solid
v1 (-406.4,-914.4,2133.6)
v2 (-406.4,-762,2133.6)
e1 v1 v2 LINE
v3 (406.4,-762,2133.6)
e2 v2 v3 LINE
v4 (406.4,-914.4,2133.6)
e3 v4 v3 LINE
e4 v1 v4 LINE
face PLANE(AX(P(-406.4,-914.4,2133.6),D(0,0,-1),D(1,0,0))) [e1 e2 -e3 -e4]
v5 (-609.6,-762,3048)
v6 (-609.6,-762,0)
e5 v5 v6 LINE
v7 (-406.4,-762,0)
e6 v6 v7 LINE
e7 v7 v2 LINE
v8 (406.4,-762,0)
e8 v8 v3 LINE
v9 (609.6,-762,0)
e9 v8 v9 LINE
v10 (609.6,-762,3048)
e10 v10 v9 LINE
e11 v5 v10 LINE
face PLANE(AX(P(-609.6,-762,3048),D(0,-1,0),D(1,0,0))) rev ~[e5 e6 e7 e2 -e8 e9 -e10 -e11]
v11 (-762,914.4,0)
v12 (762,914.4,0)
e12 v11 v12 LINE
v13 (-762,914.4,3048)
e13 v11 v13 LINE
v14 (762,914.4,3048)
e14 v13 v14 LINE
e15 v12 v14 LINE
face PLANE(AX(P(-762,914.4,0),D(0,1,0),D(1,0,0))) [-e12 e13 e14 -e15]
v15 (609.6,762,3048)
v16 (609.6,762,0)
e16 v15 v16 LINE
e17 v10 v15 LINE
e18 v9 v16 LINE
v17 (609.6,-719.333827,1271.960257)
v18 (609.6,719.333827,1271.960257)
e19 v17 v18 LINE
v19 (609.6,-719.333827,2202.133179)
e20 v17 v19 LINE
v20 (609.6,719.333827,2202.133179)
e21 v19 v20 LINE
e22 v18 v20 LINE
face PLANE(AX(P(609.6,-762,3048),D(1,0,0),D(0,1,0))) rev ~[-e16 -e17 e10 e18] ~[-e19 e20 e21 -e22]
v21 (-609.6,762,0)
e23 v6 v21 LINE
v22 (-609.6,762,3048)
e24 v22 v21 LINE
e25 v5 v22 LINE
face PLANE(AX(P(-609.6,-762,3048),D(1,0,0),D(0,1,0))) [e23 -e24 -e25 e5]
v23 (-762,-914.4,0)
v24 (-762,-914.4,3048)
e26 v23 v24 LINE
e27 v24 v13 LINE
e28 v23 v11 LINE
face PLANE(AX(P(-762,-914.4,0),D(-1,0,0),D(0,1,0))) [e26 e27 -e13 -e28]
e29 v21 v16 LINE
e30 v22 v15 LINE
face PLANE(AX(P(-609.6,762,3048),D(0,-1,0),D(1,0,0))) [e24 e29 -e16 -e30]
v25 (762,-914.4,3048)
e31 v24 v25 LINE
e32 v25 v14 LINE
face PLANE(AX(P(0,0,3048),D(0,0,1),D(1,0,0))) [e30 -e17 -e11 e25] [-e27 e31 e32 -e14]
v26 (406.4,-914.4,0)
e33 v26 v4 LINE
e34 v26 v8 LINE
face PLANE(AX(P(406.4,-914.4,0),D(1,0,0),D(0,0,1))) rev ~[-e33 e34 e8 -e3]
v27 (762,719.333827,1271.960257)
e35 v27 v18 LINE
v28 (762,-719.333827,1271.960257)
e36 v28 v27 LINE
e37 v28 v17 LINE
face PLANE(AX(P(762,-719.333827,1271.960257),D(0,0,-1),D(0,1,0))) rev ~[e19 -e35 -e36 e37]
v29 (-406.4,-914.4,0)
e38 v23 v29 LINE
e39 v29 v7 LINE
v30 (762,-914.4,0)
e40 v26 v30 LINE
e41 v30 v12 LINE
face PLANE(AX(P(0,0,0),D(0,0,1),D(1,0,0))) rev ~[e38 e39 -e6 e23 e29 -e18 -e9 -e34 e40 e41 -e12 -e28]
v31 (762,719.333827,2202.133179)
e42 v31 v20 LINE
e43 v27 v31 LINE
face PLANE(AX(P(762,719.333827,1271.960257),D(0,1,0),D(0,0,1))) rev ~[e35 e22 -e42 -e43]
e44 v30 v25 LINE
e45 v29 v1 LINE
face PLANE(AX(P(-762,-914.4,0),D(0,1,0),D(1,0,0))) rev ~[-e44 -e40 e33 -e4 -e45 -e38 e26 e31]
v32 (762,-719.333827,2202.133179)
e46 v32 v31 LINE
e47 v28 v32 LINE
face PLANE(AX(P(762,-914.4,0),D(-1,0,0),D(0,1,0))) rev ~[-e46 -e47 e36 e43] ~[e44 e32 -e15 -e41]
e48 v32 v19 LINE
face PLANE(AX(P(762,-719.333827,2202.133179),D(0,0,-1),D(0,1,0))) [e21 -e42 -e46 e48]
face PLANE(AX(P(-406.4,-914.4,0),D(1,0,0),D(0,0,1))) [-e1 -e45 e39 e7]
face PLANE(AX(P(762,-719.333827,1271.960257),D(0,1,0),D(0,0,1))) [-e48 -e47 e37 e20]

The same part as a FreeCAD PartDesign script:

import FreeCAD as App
import Part
import Sketcher
from FreeCAD import Vector
Q = App.Units.Quantity


def add_polygon(sketch, points):
    """Adds a closed chain of lines whose ends are joined by coincident constraints."""
    first, n = sketch.GeometryCount, len(points)
    for a, b in zip(points, points[1:] + points[:1]):
        sketch.addGeometry(Part.LineSegment(App.Vector(*a, 0), App.Vector(*b, 0)), False)
    for i in range(n):
        sketch.addConstraint(Sketcher.Constraint("Coincident", first + i, 2, first + (i + 1) % n, 1))

doc = App.newDocument("Part")
params = doc.addObject("Spreadsheet::Sheet", "Params")
for row, (alias, value) in enumerate([
    ("sketch1_width", "60 in"),
    ("sketch1_height", "72 in"),
    ("pad1_length", "120 in"),
    ("sketch2_width", "48 in"),
    ("sketch2_height", "60 in"),
    ("pocket1_length", "120 in"),
    ("sketch3_width", "32 in"),
    ("sketch3_height", "84 in"),
    ("pocket2_length", "8 in"),
    ("pocket3_length", "8 in"),
], start=1):
    params.set(f"A{row}", alias)
    params.set(f"B{row}", "=" + value)
    params.setAlias(f"B{row}", alias)

body = doc.addObject("PartDesign::Body", "Body")

# Sketch on XY plane
sketch1 = doc.addObject("Sketcher::SketchObject", "Sketch")
body.addObject(sketch1)
sketch1.AttachmentSupport = (doc.XY_Plane, [""])
sketch1.MapMode = "FlatFace"
add_polygon(sketch1, [(-762, 914), (-762, -914), (762, -914), (762, 914)])  # lines 0-3
sketch1.addConstraint(Sketcher.Constraint("Vertical", 0))
sketch1.addConstraint(Sketcher.Constraint("Horizontal", 1))
sketch1.addConstraint(Sketcher.Constraint("Vertical", 2))
sketch1.addConstraint(Sketcher.Constraint("Horizontal", 3))
sketch1.addConstraint(Sketcher.Constraint("Symmetric", 0, 2, 2, 2, -1, 1))
sketch1.addConstraint(Sketcher.Constraint("DistanceX", 1, 1, 1, 2, Q("60 in")))
sketch1.addConstraint(Sketcher.Constraint("DistanceY", 0, 2, 0, 1, Q("72 in")))
sketch1.setExpression("Constraints[9]", "Params.sketch1_width")
sketch1.setExpression("Constraints[10]", "Params.sketch1_height")
pad1 = doc.addObject("PartDesign::Pad", "Pad")
body.addObject(pad1)
pad1.Profile = sketch1
pad1.setExpression("Length", "Params.pad1_length")

# Sketch on XY plane
sketch2 = doc.addObject("Sketcher::SketchObject", "Sketch001")
body.addObject(sketch2)
sketch2.AttachmentSupport = (doc.XY_Plane, [""])
sketch2.MapMode = "FlatFace"
sketch2.AttachmentOffset = App.Placement(Vector(0, 0, 120 * 25.4), App.Rotation())
add_polygon(sketch2, [(-610, 762), (-610, -762), (610, -762), (610, 762)])  # lines 0-3
sketch2.addConstraint(Sketcher.Constraint("Vertical", 0))
sketch2.addConstraint(Sketcher.Constraint("Horizontal", 1))
sketch2.addConstraint(Sketcher.Constraint("Vertical", 2))
sketch2.addConstraint(Sketcher.Constraint("Horizontal", 3))
sketch2.addConstraint(Sketcher.Constraint("Symmetric", 0, 2, 2, 2, -1, 1))
sketch2.addConstraint(Sketcher.Constraint("DistanceX", 1, 1, 1, 2, Q("48 in")))
sketch2.addConstraint(Sketcher.Constraint("DistanceY", 0, 2, 0, 1, Q("60 in")))
sketch2.setExpression("Constraints[9]", "Params.sketch2_width")
sketch2.setExpression("Constraints[10]", "Params.sketch2_height")
pocket1 = doc.addObject("PartDesign::Pocket", "Pocket")
body.addObject(pocket1)
pocket1.Profile = sketch2
pocket1.setExpression("Length", "Params.pocket1_length")

# Sketch on XZ plane
sketch3 = doc.addObject("Sketcher::SketchObject", "Sketch002")
body.addObject(sketch3)
sketch3.AttachmentSupport = (doc.XZ_Plane, [""])
sketch3.MapMode = "FlatFace"
sketch3.AttachmentOffset = App.Placement(Vector(0, 0, 36 * 25.4), App.Rotation())
add_polygon(sketch3, [(-406, 2134), (-406, 0), (406, 0), (406, 2134)])  # lines 0-3
sketch3.addConstraint(Sketcher.Constraint("Vertical", 0))
sketch3.addConstraint(Sketcher.Constraint("Horizontal", 1))
sketch3.addConstraint(Sketcher.Constraint("Vertical", 2))
sketch3.addConstraint(Sketcher.Constraint("Horizontal", 3))
sketch3.addConstraint(Sketcher.Constraint("Symmetric", 0, 2, 1, 2, -1, 1))
sketch3.addConstraint(Sketcher.Constraint("DistanceX", 1, 1, 1, 2, Q("32 in")))
sketch3.addConstraint(Sketcher.Constraint("DistanceY", 0, 2, 0, 1, Q("84 in")))
sketch3.setExpression("Constraints[9]", "Params.sketch3_width")
sketch3.setExpression("Constraints[10]", "Params.sketch3_height")
pocket2 = doc.addObject("PartDesign::Pocket", "Pocket001")
body.addObject(pocket2)
pocket2.Profile = sketch3
pocket2.setExpression("Length", "Params.pocket2_length")

# Sketch on YZ plane
sketch4 = doc.addObject("Sketcher::SketchObject", "Sketch003")
body.addObject(sketch4)
sketch4.AttachmentSupport = (doc.YZ_Plane, [""])
sketch4.MapMode = "FlatFace"
sketch4.AttachmentOffset = App.Placement(Vector(0, 0, 30 * 25.4), App.Rotation())
add_polygon(sketch4, [(-719, 2202), (-719, 1272), (719, 1272), (719, 2202)])  # lines 0-3
sketch4.addConstraint(Sketcher.Constraint("Vertical", 0))
sketch4.addConstraint(Sketcher.Constraint("Horizontal", 1))
sketch4.addConstraint(Sketcher.Constraint("Vertical", 2))
sketch4.addConstraint(Sketcher.Constraint("Horizontal", 3))
sketch4.addConstraint(Sketcher.Constraint("DistanceY", 0, 2, 0, 1, 930.172921))
sketch4.addConstraint(Sketcher.Constraint("DistanceX", 1, 1, 1, 2, 1438.667654))
sketch4.addConstraint(Sketcher.Constraint("DistanceY", -1, 1, 2, 2, 2202.133179))
sketch4.addConstraint(Sketcher.Constraint("DistanceX", 0, 2, -1, 1, 719.333827))
pocket3 = doc.addObject("PartDesign::Pocket", "Pocket002")
body.addObject(pocket3)
pocket3.Profile = sketch4
pocket3.setExpression("Length", "Params.pocket3_length")

doc.recompute()
